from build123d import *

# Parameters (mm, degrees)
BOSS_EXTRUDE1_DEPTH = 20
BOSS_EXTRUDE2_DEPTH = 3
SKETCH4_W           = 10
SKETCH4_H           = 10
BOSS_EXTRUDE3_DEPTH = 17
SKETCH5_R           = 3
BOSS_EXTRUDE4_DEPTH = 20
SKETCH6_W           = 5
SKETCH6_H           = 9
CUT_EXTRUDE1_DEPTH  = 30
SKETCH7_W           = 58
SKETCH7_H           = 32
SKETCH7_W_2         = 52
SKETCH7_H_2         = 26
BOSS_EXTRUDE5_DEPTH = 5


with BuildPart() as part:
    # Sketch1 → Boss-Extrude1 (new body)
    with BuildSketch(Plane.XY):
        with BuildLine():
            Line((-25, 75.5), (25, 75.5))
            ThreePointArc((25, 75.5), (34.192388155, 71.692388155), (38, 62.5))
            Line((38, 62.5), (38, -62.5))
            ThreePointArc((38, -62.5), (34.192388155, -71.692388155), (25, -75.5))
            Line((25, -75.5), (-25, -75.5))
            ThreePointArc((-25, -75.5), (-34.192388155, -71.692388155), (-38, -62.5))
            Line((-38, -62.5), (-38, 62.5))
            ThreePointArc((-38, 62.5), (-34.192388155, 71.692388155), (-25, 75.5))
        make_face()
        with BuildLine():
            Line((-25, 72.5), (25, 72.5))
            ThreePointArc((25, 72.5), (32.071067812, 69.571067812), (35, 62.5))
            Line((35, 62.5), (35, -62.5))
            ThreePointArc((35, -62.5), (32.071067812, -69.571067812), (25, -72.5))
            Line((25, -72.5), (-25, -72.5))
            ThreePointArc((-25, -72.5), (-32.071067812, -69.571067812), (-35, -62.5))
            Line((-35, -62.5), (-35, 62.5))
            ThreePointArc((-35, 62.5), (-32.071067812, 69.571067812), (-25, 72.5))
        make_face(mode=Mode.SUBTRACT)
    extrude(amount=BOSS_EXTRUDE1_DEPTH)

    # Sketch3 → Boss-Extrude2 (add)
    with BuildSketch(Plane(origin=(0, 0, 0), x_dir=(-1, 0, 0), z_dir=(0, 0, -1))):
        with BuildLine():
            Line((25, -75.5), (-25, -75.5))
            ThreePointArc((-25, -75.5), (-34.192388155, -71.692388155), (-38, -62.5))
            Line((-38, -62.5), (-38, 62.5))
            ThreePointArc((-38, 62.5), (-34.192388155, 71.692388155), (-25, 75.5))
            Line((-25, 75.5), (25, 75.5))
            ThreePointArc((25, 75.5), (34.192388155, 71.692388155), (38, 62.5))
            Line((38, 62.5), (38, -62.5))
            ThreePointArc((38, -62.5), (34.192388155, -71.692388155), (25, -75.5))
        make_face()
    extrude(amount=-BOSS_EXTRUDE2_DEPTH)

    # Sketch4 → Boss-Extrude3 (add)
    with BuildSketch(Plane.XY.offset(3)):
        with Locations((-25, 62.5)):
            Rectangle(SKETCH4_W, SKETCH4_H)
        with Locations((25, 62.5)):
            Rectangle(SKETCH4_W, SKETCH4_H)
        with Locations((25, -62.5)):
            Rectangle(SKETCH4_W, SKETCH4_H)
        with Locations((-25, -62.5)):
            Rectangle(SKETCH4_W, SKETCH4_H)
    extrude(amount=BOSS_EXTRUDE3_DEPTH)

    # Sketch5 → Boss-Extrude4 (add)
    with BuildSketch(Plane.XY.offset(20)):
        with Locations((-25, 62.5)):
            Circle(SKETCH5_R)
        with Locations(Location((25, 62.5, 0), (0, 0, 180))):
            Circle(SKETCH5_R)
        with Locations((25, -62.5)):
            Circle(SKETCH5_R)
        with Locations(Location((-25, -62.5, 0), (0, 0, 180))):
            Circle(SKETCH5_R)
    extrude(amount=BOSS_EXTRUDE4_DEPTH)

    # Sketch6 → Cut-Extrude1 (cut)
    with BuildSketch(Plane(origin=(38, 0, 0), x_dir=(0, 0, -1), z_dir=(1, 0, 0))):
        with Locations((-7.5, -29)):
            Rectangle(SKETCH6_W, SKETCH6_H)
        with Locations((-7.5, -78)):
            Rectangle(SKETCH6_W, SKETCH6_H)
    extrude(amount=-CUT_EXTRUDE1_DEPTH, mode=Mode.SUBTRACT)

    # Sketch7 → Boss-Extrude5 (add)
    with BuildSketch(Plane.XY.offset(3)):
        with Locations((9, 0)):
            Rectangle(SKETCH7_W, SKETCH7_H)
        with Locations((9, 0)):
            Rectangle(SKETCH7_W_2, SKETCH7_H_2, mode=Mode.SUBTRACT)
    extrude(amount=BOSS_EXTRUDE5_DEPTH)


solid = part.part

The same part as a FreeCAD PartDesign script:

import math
import FreeCAD as App
import Part
import Sketcher


def add_polygon(sketch, points):
    """Adds a closed chain of lines whose ends are joined by coincident constraints."""
    first, n = sketch.GeometryCount, len(points)
    for a, b in zip(points, points[1:] + points[:1]):
        sketch.addGeometry(Part.LineSegment(App.Vector(*a, 0), App.Vector(*b, 0)), False)
    for i in range(n):
        sketch.addConstraint(Sketcher.Constraint("Coincident", first + i, 2, first + (i + 1) % n, 1))

doc = App.newDocument("Part")
body = doc.addObject("PartDesign::Body", "Body")

sketch1 = body.newObject("Sketcher::SketchObject", "Sketch")
sketch1.AttachmentSupport = (doc.getObject("XY_Plane"), [""])
sketch1.MapMode = "FlatFace"
sketch1.addGeometry(Part.LineSegment(App.Vector(25, 76, 0), App.Vector(-25, 76, 0)), False)
sketch1.addGeometry(Part.ArcOfCircle(Part.Circle(App.Vector(-25, 62, 0), App.Vector(0, 0, 1), 13), math.radians(90), math.radians(180)), False)
sketch1.addGeometry(Part.LineSegment(App.Vector(-38, 62, 0), App.Vector(-38, -62, 0)), False)
sketch1.addGeometry(Part.ArcOfCircle(Part.Circle(App.Vector(-25, -62, 0), App.Vector(0, 0, 1), 13), math.radians(-180), math.radians(-90)), False)
sketch1.addGeometry(Part.LineSegment(App.Vector(-25, -76, 0), App.Vector(25, -76, 0)), False)
sketch1.addGeometry(Part.ArcOfCircle(Part.Circle(App.Vector(25, -62, 0), App.Vector(0, 0, 1), 13), math.radians(-90), math.radians(0)), False)
sketch1.addGeometry(Part.LineSegment(App.Vector(38, -62, 0), App.Vector(38, 62, 0)), False)
sketch1.addGeometry(Part.ArcOfCircle(Part.Circle(App.Vector(25, 62, 0), App.Vector(0, 0, 1), 13), math.radians(0), math.radians(90)), False)
sketch1.addGeometry(Part.LineSegment(App.Vector(-25, 72, 0), App.Vector(25, 72, 0)), False)
sketch1.addGeometry(Part.ArcOfCircle(Part.Circle(App.Vector(25, 62, 0), App.Vector(0, 0, 1), 10), math.radians(0), math.radians(90)), False)
sketch1.addGeometry(Part.LineSegment(App.Vector(35, 62, 0), App.Vector(35, -62, 0)), False)
sketch1.addGeometry(Part.ArcOfCircle(Part.Circle(App.Vector(25, -62, 0), App.Vector(0, 0, 1), 10), math.radians(-90), math.radians(0)), False)
sketch1.addGeometry(Part.LineSegment(App.Vector(25, -72, 0), App.Vector(-25, -72, 0)), False)
sketch1.addGeometry(Part.ArcOfCircle(Part.Circle(App.Vector(-25, -62, 0), App.Vector(0, 0, 1), 10), math.radians(180), math.radians(270)), False)
sketch1.addGeometry(Part.LineSegment(App.Vector(-35, -62, 0), App.Vector(-35, 62, 0)), False)
sketch1.addGeometry(Part.ArcOfCircle(Part.Circle(App.Vector(-25, 62, 0), App.Vector(0, 0, 1), 10), math.radians(90), math.radians(180)), False)
sketch1.addConstraint(Sketcher.Constraint("Tangent", 0, 2, 1, 1))
sketch1.addConstraint(Sketcher.Constraint("Tangent", 1, 2, 2, 1))
sketch1.addConstraint(Sketcher.Constraint("Tangent", 2, 2, 3, 1))
sketch1.addConstraint(Sketcher.Constraint("Tangent", 3, 2, 4, 1))
sketch1.addConstraint(Sketcher.Constraint("Tangent", 4, 2, 5, 1))
sketch1.addConstraint(Sketcher.Constraint("Tangent", 5, 2, 6, 1))
sketch1.addConstraint(Sketcher.Constraint("Tangent", 6, 2, 7, 1))
sketch1.addConstraint(Sketcher.Constraint("Tangent", 7, 2, 0, 1))
sketch1.addConstraint(Sketcher.Constraint("Tangent", 8, 2, 9, 2))
sketch1.addConstraint(Sketcher.Constraint("Tangent", 9, 1, 10, 1))
sketch1.addConstraint(Sketcher.Constraint("Tangent", 10, 2, 11, 2))
sketch1.addConstraint(Sketcher.Constraint("Tangent", 11, 1, 12, 1))
sketch1.addConstraint(Sketcher.Constraint("Tangent", 12, 2, 13, 2))
sketch1.addConstraint(Sketcher.Constraint("Tangent", 13, 1, 14, 1))
sketch1.addConstraint(Sketcher.Constraint("Tangent", 14, 2, 15, 2))
sketch1.addConstraint(Sketcher.Constraint("Tangent", 15, 1, 8, 1))
sketch1.addConstraint(Sketcher.Constraint("Horizontal", 0))
sketch1.addConstraint(Sketcher.Constraint("Vertical", 2))
sketch1.addConstraint(Sketcher.Constraint("Horizontal", 4))
sketch1.addConstraint(Sketcher.Constraint("Vertical", 6))
sketch1.addConstraint(Sketcher.Constraint("Horizontal", 8))
sketch1.addConstraint(Sketcher.Constraint("Vertical", 10))
sketch1.addConstraint(Sketcher.Constraint("Horizontal", 12))
sketch1.addConstraint(Sketcher.Constraint("Vertical", 14))
sketch1.addConstraint(Sketcher.Constraint("Coincident", 9, 3, 7, 3))
sketch1.addConstraint(Sketcher.Constraint("Coincident", 11, 3, 5, 3))
sketch1.addConstraint(Sketcher.Constraint("Coincident", 13, 3, 3, 3))
sketch1.addConstraint(Sketcher.Constraint("Equal", 1, 3))
sketch1.addConstraint(Sketcher.Constraint("Equal", 3, 5))
sketch1.addConstraint(Sketcher.Constraint("Equal", 5, 7))
sketch1.addConstraint(Sketcher.Constraint("Equal", 13, 15))
sketch1.addConstraint(Sketcher.Constraint("Symmetric", 1, 3, 5, 3, -1, 1))
sketch1.addConstraint(Sketcher.Constraint("Radius", 1, 13.0))
sketch1.addConstraint(Sketcher.Constraint("Radius", 9, 10.0))
sketch1.addConstraint(Sketcher.Constraint("DistanceX", 0, 2, 0, 1, 50.0))
sketch1.addConstraint(Sketcher.Constraint("DistanceY", 2, 2, 2, 1, 125.0))
pad1 = body.newObject("PartDesign::Pad", "Pad")
pad1.Profile = sketch1
pad1.Length = 20

sketch2 = body.newObject("Sketcher::SketchObject", "Sketch001")
sketch2.AttachmentSupport = (doc.getObject("XY_Plane"), [""])
sketch2.MapMode = "FlatFace"
sketch2.addGeometry(Part.LineSegment(App.Vector(25, -76, 0), App.Vector(-25, -76, 0)), False)
sketch2.addGeometry(Part.ArcOfCircle(Part.Circle(App.Vector(-25, -62, 0), App.Vector(0, 0, 1), 13), math.radians(-180), math.radians(-90)), False)
sketch2.addGeometry(Part.LineSegment(App.Vector(-38, -62, 0), App.Vector(-38, 62, 0)), False)
sketch2.addGeometry(Part.ArcOfCircle(Part.Circle(App.Vector(-25, 62, 0), App.Vector(0, 0, 1), 13), math.radians(90), math.radians(180)), False)
sketch2.addGeometry(Part.LineSegment(App.Vector(-25, 76, 0), App.Vector(25, 76, 0)), False)
sketch2.addGeometry(Part.ArcOfCircle(Part.Circle(App.Vector(25, 62, 0), App.Vector(0, 0, 1), 13), math.radians(0), math.radians(90)), False)
sketch2.addGeometry(Part.LineSegment(App.Vector(38, 62, 0), App.Vector(38, -62, 0)), False)
sketch2.addGeometry(Part.ArcOfCircle(Part.Circle(App.Vector(25, -62, 0), App.Vector(0, 0, 1), 13), math.radians(-90), math.radians(0)), False)
sketch2.addConstraint(Sketcher.Constraint("Tangent", 0, 2, 1, 2))
sketch2.addConstraint(Sketcher.Constraint("Tangent", 1, 1, 2, 1))
sketch2.addConstraint(Sketcher.Constraint("Tangent", 2, 2, 3, 2))
sketch2.addConstraint(Sketcher.Constraint("Tangent", 3, 1, 4, 1))
sketch2.addConstraint(Sketcher.Constraint("Tangent", 4, 2, 5, 2))
sketch2.addConstraint(Sketcher.Constraint("Tangent", 5, 1, 6, 1))
sketch2.addConstraint(Sketcher.Constraint("Tangent", 6, 2, 7, 2))
sketch2.addConstraint(Sketcher.Constraint("Tangent", 7, 1, 0, 1))
sketch2.addConstraint(Sketcher.Constraint("Horizontal", 0))
sketch2.addConstraint(Sketcher.Constraint("Vertical", 2))
sketch2.addConstraint(Sketcher.Constraint("Horizontal", 4))
sketch2.addConstraint(Sketcher.Constraint("Vertical", 6))
sketch2.addConstraint(Sketcher.Constraint("Equal", 1, 3))
sketch2.addConstraint(Sketcher.Constraint("Equal", 3, 5))
sketch2.addConstraint(Sketcher.Constraint("Equal", 5, 7))
sketch2.addConstraint(Sketcher.Constraint("Symmetric", 1, 3, 5, 3, -1, 1))
sketch2.addConstraint(Sketcher.Constraint("Radius", 1, 13.0))
sketch2.addConstraint(Sketcher.Constraint("DistanceX", 0, 2, 0, 1, 50.0))
sketch2.addConstraint(Sketcher.Constraint("DistanceY", 2, 1, 2, 2, 125.0))
pad2 = body.newObject("PartDesign::Pad", "Pad001")
pad2.Profile = sketch2
pad2.Length = 3

sketch3 = body.newObject("Sketcher::SketchObject", "Sketch002")
sketch3.AttachmentSupport = (doc.getObject("XY_Plane"), [""])
sketch3.MapMode = "FlatFace"
sketch3.AttachmentOffset = App.Placement(App.Vector(0, 0, 3), App.Rotation())
add_polygon(sketch3, [(-30, 68), (-30, 58), (-20, 58), (-20, 68)])
add_polygon(sketch3, [(20, 68), (20, 58), (30, 58), (30, 68)])
add_polygon(sketch3, [(20, -58), (20, -68), (30, -68), (30, -58)])
add_polygon(sketch3, [(-30, -58), (-30, -68), (-20, -68), (-20, -58)])
sketch3.addConstraint(Sketcher.Constraint("Vertical", 0))
sketch3.addConstraint(Sketcher.Constraint("Horizontal", 1))
sketch3.addConstraint(Sketcher.Constraint("Vertical", 2))
sketch3.addConstraint(Sketcher.Constraint("Horizontal", 3))
sketch3.addConstraint(Sketcher.Constraint("Vertical", 4))
sketch3.addConstraint(Sketcher.Constraint("Horizontal", 5))
sketch3.addConstraint(Sketcher.Constraint("Vertical", 6))
sketch3.addConstraint(Sketcher.Constraint("Horizontal", 7))
sketch3.addConstraint(Sketcher.Constraint("Vertical", 8))
sketch3.addConstraint(Sketcher.Constraint("Horizontal", 9))
sketch3.addConstraint(Sketcher.Constraint("Vertical", 10))
sketch3.addConstraint(Sketcher.Constraint("Horizontal", 11))
sketch3.addConstraint(Sketcher.Constraint("Vertical", 12))
sketch3.addConstraint(Sketcher.Constraint("Horizontal", 13))
sketch3.addConstraint(Sketcher.Constraint("Vertical", 14))
sketch3.addConstraint(Sketcher.Constraint("Horizontal", 15))
sketch3.addConstraint(Sketcher.Constraint("Symmetric", 2, 2, 8, 2, -1, 1))
sketch3.addConstraint(Sketcher.Constraint("Symmetric", 0, 2, 10, 2, -1, 1))
sketch3.addConstraint(Sketcher.Constraint("Symmetric", 6, 2, 12, 2, -1, 1))
sketch3.addConstraint(Sketcher.Constraint("Symmetric", 4, 2, 14, 2, -1, 1))
sketch3.addConstraint(Sketcher.Constraint("Symmetric", 1, 2, 4, 2, -2))
sketch3.addConstraint(Sketcher.Constraint("Symmetric", 3, 2, 6, 2, -2))
sketch3.addConstraint(Sketcher.Constraint("Equal", 15, 0))
sketch3.addConstraint(Sketcher.Constraint("DistanceX", 1, 1, 1, 2, 10.0))
sketch3.addConstraint(Sketcher.Constraint("DistanceX", 0, 2, -1, 1, 30.0))
sketch3.addConstraint(Sketcher.Constraint("DistanceY", 8, 2, 4, 2, 125.0))
pad3 = body.newObject("PartDesign::Pad", "Pad002")
pad3.Profile = sketch3
pad3.Length = 17

sketch4 = body.newObject("Sketcher::SketchObject", "Sketch003")
sketch4.AttachmentSupport = (doc.getObject("XY_Plane"), [""])
sketch4.MapMode = "FlatFace"
sketch4.AttachmentOffset = App.Placement(App.Vector(0, 0, 20), App.Rotation())
sketch4.addGeometry(Part.Circle(App.Vector(-25, 62.5, 0), App.Vector(0, 0, 1), 3), False)
sketch4.addGeometry(Part.Circle(App.Vector(25, 62.5, 0), App.Vector(0, 0, 1), 3), False)
sketch4.addGeometry(Part.Circle(App.Vector(25, -62.5, 0), App.Vector(0, 0, 1), 3), False)
sketch4.addGeometry(Part.Circle(App.Vector(-25, -62.5, 0), App.Vector(0, 0, 1), 3), False)
sketch4.addConstraint(Sketcher.Constraint("Equal", 0, 1))
sketch4.addConstraint(Sketcher.Constraint("Equal", 1, 2))
sketch4.addConstraint(Sketcher.Constraint("Equal", 2, 3))
sketch4.addConstraint(Sketcher.Constraint("Symmetric", 0, 3, 2, 3, -1, 1))
sketch4.addConstraint(Sketcher.Constraint("Symmetric", 1, 3, 3, 3, -1, 1))
sketch4.addConstraint(Sketcher.Constraint("Symmetric", 0, 3, 1, 3, -2))
sketch4.addConstraint(Sketcher.Constraint("Diameter", 0, 6.0))
sketch4.addConstraint(Sketcher.Constraint("DistanceX", 0, 3, -1, 1, 25.0))
sketch4.addConstraint(Sketcher.Constraint("DistanceY", 2, 3, 1, 3, 125.0))
pad4 = body.newObject("PartDesign::Pad", "Pad003")
pad4.Profile = sketch4
pad4.Length = 20

sketch5 = body.newObject("Sketcher::SketchObject", "Sketch004")
sketch5.AttachmentSupport = (doc.getObject("YZ_Plane"), [""])
sketch5.MapMode = "FlatFace"
sketch5.AttachmentOffset = App.Placement(App.Vector(0, 0, 38), App.Rotation())
add_polygon(sketch5, [(-24, 10), (-34, 10), (-34, 5), (-24, 5)])
add_polygon(sketch5, [(-74, 10), (-82, 10), (-82, 5), (-74, 5)])
sketch5.addConstraint(Sketcher.Constraint("Horizontal", 0))
sketch5.addConstraint(Sketcher.Constraint("Vertical", 1))
sketch5.addConstraint(Sketcher.Constraint("Horizontal", 2))
sketch5.addConstraint(Sketcher.Constraint("Vertical", 3))
sketch5.addConstraint(Sketcher.Constraint("Horizontal", 4))
sketch5.addConstraint(Sketcher.Constraint("Vertical", 5))
sketch5.addConstraint(Sketcher.Constraint("Horizontal", 6))
sketch5.addConstraint(Sketcher.Constraint("Vertical", 7))
sketch5.addConstraint(Sketcher.Constraint("Horizontal", 3, 2, 4, 2))
sketch5.addConstraint(Sketcher.Constraint("Horizontal", 2, 2, 5, 2))
sketch5.addConstraint(Sketcher.Constraint("Equal", 2, 4))
sketch5.addConstraint(Sketcher.Constraint("DistanceX", 0, 2, 0, 1, 9.0))
sketch5.addConstraint(Sketcher.Constraint("DistanceY", 1, 2, 1, 1, 5.0))
sketch5.addConstraint(Sketcher.Constraint("DistanceY", -1, 1, 0, 2, 10.0))
sketch5.addConstraint(Sketcher.Constraint("DistanceX", 4, 2, 0, 2, 49.0))
sketch5.addConstraint(Sketcher.Constraint("DistanceX", 0, 2, -1, 1, 33.5))
pocket1 = body.newObject("PartDesign::Pocket", "Pocket")
pocket1.Profile = sketch5
pocket1.Length = 30

sketch6 = body.newObject("Sketcher::SketchObject", "Sketch005")
sketch6.AttachmentSupport = (doc.getObject("XY_Plane"), [""])
sketch6.MapMode = "FlatFace"
sketch6.AttachmentOffset = App.Placement(App.Vector(0, 0, 3), App.Rotation())
add_polygon(sketch6, [(-20, 16), (-20, -16), (38, -16), (38, 16)])
add_polygon(sketch6, [(35, -13), (-17, -13), (-17, 13), (35, 13)])
sketch6.addConstraint(Sketcher.Constraint("Vertical", 0))
sketch6.addConstraint(Sketcher.Constraint("Horizontal", 1))
sketch6.addConstraint(Sketcher.Constraint("Vertical", 2))
sketch6.addConstraint(Sketcher.Constraint("Horizontal", 3))
sketch6.addConstraint(Sketcher.Constraint("Horizontal", 4))
sketch6.addConstraint(Sketcher.Constraint("Vertical", 5))
sketch6.addConstraint(Sketcher.Constraint("Horizontal", 6))
sketch6.addConstraint(Sketcher.Constraint("Vertical", 7))
sketch6.addConstraint(Sketcher.Constraint("DistanceX", 1, 1, 1, 2, 58.0))
sketch6.addConstraint(Sketcher.Constraint("DistanceX", 4, 2, 4, 1, 52.0))
sketch6.addConstraint(Sketcher.Constraint("DistanceY", 0, 2, 0, 1, 32.0))
sketch6.addConstraint(Sketcher.Constraint("DistanceY", 5, 1, 5, 2, 26.0))
sketch6.addConstraint(Sketcher.Constraint("DistanceX", 0, 2, -1, 1, 20.0))
sketch6.addConstraint(Sketcher.Constraint("DistanceY", 0, 2, -1, 1, 16.0))
sketch6.addConstraint(Sketcher.Constraint("DistanceX", 4, 2, -1, 1, 17.0))
sketch6.addConstraint(Sketcher.Constraint("DistanceY", 4, 2, -1, 1, 13.0))
pad5 = body.newObject("PartDesign::Pad", "Pad004")
pad5.Profile = sketch6
pad5.Length = 5

doc.recompute()
